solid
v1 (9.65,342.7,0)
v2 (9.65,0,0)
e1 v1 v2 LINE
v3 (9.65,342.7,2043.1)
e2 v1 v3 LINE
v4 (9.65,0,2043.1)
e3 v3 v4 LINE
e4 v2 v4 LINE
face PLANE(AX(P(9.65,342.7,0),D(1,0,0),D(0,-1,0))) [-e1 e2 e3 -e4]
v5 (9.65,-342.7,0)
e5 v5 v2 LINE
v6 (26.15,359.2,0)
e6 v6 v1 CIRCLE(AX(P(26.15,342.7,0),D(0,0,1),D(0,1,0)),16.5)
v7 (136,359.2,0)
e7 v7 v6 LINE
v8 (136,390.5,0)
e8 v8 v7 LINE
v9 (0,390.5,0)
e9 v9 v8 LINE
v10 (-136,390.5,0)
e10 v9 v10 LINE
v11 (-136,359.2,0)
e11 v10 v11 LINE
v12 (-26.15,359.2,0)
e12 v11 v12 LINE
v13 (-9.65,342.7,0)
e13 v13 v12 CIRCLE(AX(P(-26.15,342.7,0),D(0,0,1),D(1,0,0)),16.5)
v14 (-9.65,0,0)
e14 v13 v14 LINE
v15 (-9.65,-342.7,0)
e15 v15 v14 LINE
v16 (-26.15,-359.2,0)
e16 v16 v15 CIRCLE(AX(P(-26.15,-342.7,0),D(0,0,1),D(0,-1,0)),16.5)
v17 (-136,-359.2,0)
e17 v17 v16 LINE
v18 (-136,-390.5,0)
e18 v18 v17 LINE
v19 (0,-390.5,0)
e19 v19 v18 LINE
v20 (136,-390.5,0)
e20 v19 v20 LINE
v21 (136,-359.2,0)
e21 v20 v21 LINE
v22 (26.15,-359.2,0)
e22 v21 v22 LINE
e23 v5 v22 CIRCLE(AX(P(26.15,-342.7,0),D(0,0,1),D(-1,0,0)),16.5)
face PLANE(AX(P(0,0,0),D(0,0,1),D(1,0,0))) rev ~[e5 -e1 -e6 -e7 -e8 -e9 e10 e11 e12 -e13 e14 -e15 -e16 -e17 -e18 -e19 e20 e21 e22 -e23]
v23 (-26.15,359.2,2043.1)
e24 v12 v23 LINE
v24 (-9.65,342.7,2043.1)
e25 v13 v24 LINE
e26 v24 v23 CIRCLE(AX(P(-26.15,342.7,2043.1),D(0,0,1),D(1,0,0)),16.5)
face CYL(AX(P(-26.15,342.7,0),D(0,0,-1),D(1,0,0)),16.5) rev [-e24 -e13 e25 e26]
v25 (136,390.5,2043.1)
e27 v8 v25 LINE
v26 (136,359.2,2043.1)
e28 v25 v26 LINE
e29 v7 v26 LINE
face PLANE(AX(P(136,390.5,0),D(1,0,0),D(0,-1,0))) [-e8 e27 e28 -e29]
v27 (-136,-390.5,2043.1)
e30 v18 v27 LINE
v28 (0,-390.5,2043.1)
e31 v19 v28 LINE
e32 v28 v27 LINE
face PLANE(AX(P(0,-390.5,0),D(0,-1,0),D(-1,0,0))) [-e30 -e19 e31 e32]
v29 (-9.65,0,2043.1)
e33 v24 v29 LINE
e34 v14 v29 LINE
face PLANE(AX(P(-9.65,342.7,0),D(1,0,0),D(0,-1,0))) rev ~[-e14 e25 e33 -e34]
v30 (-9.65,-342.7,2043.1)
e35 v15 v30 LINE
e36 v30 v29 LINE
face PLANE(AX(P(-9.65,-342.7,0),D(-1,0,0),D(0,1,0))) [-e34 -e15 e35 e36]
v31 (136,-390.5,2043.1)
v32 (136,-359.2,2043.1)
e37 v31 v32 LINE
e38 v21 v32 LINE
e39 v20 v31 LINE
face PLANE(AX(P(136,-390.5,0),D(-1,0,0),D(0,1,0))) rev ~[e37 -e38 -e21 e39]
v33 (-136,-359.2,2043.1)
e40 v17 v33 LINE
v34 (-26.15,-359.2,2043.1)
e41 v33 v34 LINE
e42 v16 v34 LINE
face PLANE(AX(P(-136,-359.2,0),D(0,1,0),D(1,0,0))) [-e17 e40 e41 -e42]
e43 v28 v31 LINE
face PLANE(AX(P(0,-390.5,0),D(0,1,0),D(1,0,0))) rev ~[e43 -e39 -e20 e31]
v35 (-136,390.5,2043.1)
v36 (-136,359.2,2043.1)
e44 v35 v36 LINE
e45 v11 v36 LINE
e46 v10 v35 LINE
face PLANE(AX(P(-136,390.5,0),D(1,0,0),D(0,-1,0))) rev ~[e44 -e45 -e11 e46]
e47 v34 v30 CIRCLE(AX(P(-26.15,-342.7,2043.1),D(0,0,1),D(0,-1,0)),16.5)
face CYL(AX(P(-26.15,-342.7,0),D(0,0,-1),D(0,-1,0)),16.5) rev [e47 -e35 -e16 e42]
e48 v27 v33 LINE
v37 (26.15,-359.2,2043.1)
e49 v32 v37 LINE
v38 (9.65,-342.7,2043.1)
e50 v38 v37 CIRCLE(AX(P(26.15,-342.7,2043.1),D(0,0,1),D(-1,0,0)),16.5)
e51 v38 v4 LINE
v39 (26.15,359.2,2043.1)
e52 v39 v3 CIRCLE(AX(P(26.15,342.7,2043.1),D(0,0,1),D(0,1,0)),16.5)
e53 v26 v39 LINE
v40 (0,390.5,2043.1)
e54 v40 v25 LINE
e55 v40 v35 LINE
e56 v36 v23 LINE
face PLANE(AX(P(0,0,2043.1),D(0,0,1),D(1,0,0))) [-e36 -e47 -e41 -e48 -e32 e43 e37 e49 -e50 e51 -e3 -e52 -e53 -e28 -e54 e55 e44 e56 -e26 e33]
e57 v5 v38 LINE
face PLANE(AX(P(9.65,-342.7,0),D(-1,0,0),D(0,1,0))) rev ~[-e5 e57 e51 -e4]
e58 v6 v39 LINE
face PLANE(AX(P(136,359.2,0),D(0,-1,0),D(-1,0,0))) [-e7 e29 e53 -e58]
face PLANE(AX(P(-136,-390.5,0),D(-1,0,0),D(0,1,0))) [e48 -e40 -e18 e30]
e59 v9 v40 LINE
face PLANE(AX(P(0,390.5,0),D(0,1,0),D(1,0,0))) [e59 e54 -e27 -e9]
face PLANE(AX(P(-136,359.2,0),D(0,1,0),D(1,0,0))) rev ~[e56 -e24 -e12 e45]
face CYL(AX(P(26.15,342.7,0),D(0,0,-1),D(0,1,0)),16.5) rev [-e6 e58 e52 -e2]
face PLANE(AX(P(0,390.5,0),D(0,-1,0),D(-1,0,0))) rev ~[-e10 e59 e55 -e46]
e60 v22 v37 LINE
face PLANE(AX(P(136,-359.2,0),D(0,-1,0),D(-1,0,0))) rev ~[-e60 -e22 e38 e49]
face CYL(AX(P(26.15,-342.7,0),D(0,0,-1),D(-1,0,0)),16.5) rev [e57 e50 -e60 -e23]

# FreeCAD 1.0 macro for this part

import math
import FreeCAD as App
import Part
import Sketcher
Q = App.Units.Quantity

doc = App.newDocument("Part")
params = doc.addObject("Spreadsheet::Sheet", "Params")
for row, (alias, value) in enumerate([
    ("sketch1_radius", "16.5 mm"),
    ("sketch1_height", "31.3 mm"),
    ("pad1_length", "2043.1 mm"),
], start=1):
    params.set(f"A{row}", alias)
    params.set(f"B{row}", "=" + value)
    params.setAlias(f"B{row}", alias)

body = doc.addObject("PartDesign::Body", "Body")

# Sketch on XY plane
sketch1 = doc.addObject("Sketcher::SketchObject", "Sketch")
body.addObject(sketch1)
sketch1.AttachmentSupport = (doc.XY_Plane, [""])
sketch1.MapMode = "FlatFace"
sketch1.addGeometry(Part.LineSegment(App.Vector(-136, -359, 0), App.Vector(-136, -390, 0)), False)
sketch1.addGeometry(Part.LineSegment(App.Vector(-136, -390, 0), App.Vector(136, -390, 0)), False)
sketch1.addGeometry(Part.LineSegment(App.Vector(136, -390, 0), App.Vector(136, -359, 0)), False)
sketch1.addGeometry(Part.LineSegment(App.Vector(136, -359, 0), App.Vector(26, -359, 0)), False)
sketch1.addGeometry(Part.ArcOfCircle(Part.Circle(App.Vector(26, -343, 0), App.Vector(0, 0, 1), 16), math.radians(180), math.radians(270)), False)
sketch1.addGeometry(Part.LineSegment(App.Vector(10, -343, 0), App.Vector(10, 343, 0)), False)
sketch1.addGeometry(Part.ArcOfCircle(Part.Circle(App.Vector(26, 343, 0), App.Vector(0, 0, 1), 16), math.radians(90), math.radians(180)), False)
sketch1.addGeometry(Part.LineSegment(App.Vector(26, 359, 0), App.Vector(136, 359, 0)), False)
sketch1.addGeometry(Part.LineSegment(App.Vector(136, 359, 0), App.Vector(136, 390, 0)), False)
sketch1.addGeometry(Part.LineSegment(App.Vector(136, 390, 0), App.Vector(-136, 390, 0)), False)
sketch1.addGeometry(Part.LineSegment(App.Vector(-136, 390, 0), App.Vector(-136, 359, 0)), False)
sketch1.addGeometry(Part.LineSegment(App.Vector(-136, 359, 0), App.Vector(-26, 359, 0)), False)
sketch1.addGeometry(Part.ArcOfCircle(Part.Circle(App.Vector(-26, 343, 0), App.Vector(0, 0, 1), 16), math.radians(0), math.radians(90)), False)
sketch1.addGeometry(Part.LineSegment(App.Vector(-10, 343, 0), App.Vector(-10, -343, 0)), False)
sketch1.addGeometry(Part.ArcOfCircle(Part.Circle(App.Vector(-26, -343, 0), App.Vector(0, 0, 1), 16), math.radians(-90), math.radians(0)), False)
sketch1.addGeometry(Part.LineSegment(App.Vector(-26, -359, 0), App.Vector(-136, -359, 0)), False)
sketch1.addConstraint(Sketcher.Constraint("Coincident", 0, 2, 1, 1))
sketch1.addConstraint(Sketcher.Constraint("Coincident", 1, 2, 2, 1))
sketch1.addConstraint(Sketcher.Constraint("Coincident", 2, 2, 3, 1))
sketch1.addConstraint(Sketcher.Constraint("Tangent", 3, 2, 4, 2))
sketch1.addConstraint(Sketcher.Constraint("Tangent", 4, 1, 5, 1))
sketch1.addConstraint(Sketcher.Constraint("Tangent", 5, 2, 6, 2))
sketch1.addConstraint(Sketcher.Constraint("Tangent", 6, 1, 7, 1))
sketch1.addConstraint(Sketcher.Constraint("Coincident", 7, 2, 8, 1))
sketch1.addConstraint(Sketcher.Constraint("Coincident", 8, 2, 9, 1))
sketch1.addConstraint(Sketcher.Constraint("Coincident", 9, 2, 10, 1))
sketch1.addConstraint(Sketcher.Constraint("Coincident", 10, 2, 11, 1))
sketch1.addConstraint(Sketcher.Constraint("Tangent", 11, 2, 12, 2))
sketch1.addConstraint(Sketcher.Constraint("Tangent", 12, 1, 13, 1))
sketch1.addConstraint(Sketcher.Constraint("Tangent", 13, 2, 14, 2))
sketch1.addConstraint(Sketcher.Constraint("Tangent", 14, 1, 15, 1))
sketch1.addConstraint(Sketcher.Constraint("Coincident", 15, 2, 0, 1))
sketch1.addConstraint(Sketcher.Constraint("Vertical", 0))
sketch1.addConstraint(Sketcher.Constraint("Horizontal", 1))
sketch1.addConstraint(Sketcher.Constraint("Vertical", 2))
sketch1.addConstraint(Sketcher.Constraint("Horizontal", 3))
sketch1.addConstraint(Sketcher.Constraint("Vertical", 5))
sketch1.addConstraint(Sketcher.Constraint("Horizontal", 7))
sketch1.addConstraint(Sketcher.Constraint("Vertical", 8))
sketch1.addConstraint(Sketcher.Constraint("Horizontal", 9))
sketch1.addConstraint(Sketcher.Constraint("Vertical", 10))
sketch1.addConstraint(Sketcher.Constraint("Horizontal", 11))
sketch1.addConstraint(Sketcher.Constraint("Vertical", 13))
sketch1.addConstraint(Sketcher.Constraint("Horizontal", 15))
sketch1.addConstraint(Sketcher.Constraint("Equal", 4, 6))
sketch1.addConstraint(Sketcher.Constraint("Equal", 6, 12))
sketch1.addConstraint(Sketcher.Constraint("Equal", 12, 14))
sketch1.addConstraint(Sketcher.Constraint("Symmetric", 4, 3, 12, 3, -1, 1))
sketch1.addConstraint(Sketcher.Constraint("Symmetric", 0, 2, 8, 2, -1, 1))
sketch1.addConstraint(Sketcher.Constraint("Symmetric", 7, 2, 10, 2, -2))
sketch1.addConstraint(Sketcher.Constraint("Symmetric", 2, 2, 15, 2, -2))
sketch1.addConstraint(Sketcher.Constraint("Radius", 4, Q("16.5 mm")))
sketch1.addConstraint(Sketcher.Constraint("DistanceY", 0, 2, 0, 1, Q("31.3 mm")))
sketch1.addConstraint(Sketcher.Constraint("DistanceX", 0, 2, -1, 1, Q("136 mm")))
sketch1.addConstraint(Sketcher.Constraint("DistanceY", 0, 2, -1, 1, Q("390.5 mm")))
sketch1.addConstraint(Sketcher.Constraint("DistanceX", -1, 1, 4, 1, Q("9.65 mm")))
sketch1.setExpression("Constraints[35]", "Params.sketch1_radius")
sketch1.setExpression("Constraints[36]", "Params.sketch1_height")
pad1 = doc.addObject("PartDesign::Pad", "Pad")
body.addObject(pad1)
pad1.Profile = sketch1
pad1.setExpression("Length", "Params.pad1_length")

doc.recompute()
